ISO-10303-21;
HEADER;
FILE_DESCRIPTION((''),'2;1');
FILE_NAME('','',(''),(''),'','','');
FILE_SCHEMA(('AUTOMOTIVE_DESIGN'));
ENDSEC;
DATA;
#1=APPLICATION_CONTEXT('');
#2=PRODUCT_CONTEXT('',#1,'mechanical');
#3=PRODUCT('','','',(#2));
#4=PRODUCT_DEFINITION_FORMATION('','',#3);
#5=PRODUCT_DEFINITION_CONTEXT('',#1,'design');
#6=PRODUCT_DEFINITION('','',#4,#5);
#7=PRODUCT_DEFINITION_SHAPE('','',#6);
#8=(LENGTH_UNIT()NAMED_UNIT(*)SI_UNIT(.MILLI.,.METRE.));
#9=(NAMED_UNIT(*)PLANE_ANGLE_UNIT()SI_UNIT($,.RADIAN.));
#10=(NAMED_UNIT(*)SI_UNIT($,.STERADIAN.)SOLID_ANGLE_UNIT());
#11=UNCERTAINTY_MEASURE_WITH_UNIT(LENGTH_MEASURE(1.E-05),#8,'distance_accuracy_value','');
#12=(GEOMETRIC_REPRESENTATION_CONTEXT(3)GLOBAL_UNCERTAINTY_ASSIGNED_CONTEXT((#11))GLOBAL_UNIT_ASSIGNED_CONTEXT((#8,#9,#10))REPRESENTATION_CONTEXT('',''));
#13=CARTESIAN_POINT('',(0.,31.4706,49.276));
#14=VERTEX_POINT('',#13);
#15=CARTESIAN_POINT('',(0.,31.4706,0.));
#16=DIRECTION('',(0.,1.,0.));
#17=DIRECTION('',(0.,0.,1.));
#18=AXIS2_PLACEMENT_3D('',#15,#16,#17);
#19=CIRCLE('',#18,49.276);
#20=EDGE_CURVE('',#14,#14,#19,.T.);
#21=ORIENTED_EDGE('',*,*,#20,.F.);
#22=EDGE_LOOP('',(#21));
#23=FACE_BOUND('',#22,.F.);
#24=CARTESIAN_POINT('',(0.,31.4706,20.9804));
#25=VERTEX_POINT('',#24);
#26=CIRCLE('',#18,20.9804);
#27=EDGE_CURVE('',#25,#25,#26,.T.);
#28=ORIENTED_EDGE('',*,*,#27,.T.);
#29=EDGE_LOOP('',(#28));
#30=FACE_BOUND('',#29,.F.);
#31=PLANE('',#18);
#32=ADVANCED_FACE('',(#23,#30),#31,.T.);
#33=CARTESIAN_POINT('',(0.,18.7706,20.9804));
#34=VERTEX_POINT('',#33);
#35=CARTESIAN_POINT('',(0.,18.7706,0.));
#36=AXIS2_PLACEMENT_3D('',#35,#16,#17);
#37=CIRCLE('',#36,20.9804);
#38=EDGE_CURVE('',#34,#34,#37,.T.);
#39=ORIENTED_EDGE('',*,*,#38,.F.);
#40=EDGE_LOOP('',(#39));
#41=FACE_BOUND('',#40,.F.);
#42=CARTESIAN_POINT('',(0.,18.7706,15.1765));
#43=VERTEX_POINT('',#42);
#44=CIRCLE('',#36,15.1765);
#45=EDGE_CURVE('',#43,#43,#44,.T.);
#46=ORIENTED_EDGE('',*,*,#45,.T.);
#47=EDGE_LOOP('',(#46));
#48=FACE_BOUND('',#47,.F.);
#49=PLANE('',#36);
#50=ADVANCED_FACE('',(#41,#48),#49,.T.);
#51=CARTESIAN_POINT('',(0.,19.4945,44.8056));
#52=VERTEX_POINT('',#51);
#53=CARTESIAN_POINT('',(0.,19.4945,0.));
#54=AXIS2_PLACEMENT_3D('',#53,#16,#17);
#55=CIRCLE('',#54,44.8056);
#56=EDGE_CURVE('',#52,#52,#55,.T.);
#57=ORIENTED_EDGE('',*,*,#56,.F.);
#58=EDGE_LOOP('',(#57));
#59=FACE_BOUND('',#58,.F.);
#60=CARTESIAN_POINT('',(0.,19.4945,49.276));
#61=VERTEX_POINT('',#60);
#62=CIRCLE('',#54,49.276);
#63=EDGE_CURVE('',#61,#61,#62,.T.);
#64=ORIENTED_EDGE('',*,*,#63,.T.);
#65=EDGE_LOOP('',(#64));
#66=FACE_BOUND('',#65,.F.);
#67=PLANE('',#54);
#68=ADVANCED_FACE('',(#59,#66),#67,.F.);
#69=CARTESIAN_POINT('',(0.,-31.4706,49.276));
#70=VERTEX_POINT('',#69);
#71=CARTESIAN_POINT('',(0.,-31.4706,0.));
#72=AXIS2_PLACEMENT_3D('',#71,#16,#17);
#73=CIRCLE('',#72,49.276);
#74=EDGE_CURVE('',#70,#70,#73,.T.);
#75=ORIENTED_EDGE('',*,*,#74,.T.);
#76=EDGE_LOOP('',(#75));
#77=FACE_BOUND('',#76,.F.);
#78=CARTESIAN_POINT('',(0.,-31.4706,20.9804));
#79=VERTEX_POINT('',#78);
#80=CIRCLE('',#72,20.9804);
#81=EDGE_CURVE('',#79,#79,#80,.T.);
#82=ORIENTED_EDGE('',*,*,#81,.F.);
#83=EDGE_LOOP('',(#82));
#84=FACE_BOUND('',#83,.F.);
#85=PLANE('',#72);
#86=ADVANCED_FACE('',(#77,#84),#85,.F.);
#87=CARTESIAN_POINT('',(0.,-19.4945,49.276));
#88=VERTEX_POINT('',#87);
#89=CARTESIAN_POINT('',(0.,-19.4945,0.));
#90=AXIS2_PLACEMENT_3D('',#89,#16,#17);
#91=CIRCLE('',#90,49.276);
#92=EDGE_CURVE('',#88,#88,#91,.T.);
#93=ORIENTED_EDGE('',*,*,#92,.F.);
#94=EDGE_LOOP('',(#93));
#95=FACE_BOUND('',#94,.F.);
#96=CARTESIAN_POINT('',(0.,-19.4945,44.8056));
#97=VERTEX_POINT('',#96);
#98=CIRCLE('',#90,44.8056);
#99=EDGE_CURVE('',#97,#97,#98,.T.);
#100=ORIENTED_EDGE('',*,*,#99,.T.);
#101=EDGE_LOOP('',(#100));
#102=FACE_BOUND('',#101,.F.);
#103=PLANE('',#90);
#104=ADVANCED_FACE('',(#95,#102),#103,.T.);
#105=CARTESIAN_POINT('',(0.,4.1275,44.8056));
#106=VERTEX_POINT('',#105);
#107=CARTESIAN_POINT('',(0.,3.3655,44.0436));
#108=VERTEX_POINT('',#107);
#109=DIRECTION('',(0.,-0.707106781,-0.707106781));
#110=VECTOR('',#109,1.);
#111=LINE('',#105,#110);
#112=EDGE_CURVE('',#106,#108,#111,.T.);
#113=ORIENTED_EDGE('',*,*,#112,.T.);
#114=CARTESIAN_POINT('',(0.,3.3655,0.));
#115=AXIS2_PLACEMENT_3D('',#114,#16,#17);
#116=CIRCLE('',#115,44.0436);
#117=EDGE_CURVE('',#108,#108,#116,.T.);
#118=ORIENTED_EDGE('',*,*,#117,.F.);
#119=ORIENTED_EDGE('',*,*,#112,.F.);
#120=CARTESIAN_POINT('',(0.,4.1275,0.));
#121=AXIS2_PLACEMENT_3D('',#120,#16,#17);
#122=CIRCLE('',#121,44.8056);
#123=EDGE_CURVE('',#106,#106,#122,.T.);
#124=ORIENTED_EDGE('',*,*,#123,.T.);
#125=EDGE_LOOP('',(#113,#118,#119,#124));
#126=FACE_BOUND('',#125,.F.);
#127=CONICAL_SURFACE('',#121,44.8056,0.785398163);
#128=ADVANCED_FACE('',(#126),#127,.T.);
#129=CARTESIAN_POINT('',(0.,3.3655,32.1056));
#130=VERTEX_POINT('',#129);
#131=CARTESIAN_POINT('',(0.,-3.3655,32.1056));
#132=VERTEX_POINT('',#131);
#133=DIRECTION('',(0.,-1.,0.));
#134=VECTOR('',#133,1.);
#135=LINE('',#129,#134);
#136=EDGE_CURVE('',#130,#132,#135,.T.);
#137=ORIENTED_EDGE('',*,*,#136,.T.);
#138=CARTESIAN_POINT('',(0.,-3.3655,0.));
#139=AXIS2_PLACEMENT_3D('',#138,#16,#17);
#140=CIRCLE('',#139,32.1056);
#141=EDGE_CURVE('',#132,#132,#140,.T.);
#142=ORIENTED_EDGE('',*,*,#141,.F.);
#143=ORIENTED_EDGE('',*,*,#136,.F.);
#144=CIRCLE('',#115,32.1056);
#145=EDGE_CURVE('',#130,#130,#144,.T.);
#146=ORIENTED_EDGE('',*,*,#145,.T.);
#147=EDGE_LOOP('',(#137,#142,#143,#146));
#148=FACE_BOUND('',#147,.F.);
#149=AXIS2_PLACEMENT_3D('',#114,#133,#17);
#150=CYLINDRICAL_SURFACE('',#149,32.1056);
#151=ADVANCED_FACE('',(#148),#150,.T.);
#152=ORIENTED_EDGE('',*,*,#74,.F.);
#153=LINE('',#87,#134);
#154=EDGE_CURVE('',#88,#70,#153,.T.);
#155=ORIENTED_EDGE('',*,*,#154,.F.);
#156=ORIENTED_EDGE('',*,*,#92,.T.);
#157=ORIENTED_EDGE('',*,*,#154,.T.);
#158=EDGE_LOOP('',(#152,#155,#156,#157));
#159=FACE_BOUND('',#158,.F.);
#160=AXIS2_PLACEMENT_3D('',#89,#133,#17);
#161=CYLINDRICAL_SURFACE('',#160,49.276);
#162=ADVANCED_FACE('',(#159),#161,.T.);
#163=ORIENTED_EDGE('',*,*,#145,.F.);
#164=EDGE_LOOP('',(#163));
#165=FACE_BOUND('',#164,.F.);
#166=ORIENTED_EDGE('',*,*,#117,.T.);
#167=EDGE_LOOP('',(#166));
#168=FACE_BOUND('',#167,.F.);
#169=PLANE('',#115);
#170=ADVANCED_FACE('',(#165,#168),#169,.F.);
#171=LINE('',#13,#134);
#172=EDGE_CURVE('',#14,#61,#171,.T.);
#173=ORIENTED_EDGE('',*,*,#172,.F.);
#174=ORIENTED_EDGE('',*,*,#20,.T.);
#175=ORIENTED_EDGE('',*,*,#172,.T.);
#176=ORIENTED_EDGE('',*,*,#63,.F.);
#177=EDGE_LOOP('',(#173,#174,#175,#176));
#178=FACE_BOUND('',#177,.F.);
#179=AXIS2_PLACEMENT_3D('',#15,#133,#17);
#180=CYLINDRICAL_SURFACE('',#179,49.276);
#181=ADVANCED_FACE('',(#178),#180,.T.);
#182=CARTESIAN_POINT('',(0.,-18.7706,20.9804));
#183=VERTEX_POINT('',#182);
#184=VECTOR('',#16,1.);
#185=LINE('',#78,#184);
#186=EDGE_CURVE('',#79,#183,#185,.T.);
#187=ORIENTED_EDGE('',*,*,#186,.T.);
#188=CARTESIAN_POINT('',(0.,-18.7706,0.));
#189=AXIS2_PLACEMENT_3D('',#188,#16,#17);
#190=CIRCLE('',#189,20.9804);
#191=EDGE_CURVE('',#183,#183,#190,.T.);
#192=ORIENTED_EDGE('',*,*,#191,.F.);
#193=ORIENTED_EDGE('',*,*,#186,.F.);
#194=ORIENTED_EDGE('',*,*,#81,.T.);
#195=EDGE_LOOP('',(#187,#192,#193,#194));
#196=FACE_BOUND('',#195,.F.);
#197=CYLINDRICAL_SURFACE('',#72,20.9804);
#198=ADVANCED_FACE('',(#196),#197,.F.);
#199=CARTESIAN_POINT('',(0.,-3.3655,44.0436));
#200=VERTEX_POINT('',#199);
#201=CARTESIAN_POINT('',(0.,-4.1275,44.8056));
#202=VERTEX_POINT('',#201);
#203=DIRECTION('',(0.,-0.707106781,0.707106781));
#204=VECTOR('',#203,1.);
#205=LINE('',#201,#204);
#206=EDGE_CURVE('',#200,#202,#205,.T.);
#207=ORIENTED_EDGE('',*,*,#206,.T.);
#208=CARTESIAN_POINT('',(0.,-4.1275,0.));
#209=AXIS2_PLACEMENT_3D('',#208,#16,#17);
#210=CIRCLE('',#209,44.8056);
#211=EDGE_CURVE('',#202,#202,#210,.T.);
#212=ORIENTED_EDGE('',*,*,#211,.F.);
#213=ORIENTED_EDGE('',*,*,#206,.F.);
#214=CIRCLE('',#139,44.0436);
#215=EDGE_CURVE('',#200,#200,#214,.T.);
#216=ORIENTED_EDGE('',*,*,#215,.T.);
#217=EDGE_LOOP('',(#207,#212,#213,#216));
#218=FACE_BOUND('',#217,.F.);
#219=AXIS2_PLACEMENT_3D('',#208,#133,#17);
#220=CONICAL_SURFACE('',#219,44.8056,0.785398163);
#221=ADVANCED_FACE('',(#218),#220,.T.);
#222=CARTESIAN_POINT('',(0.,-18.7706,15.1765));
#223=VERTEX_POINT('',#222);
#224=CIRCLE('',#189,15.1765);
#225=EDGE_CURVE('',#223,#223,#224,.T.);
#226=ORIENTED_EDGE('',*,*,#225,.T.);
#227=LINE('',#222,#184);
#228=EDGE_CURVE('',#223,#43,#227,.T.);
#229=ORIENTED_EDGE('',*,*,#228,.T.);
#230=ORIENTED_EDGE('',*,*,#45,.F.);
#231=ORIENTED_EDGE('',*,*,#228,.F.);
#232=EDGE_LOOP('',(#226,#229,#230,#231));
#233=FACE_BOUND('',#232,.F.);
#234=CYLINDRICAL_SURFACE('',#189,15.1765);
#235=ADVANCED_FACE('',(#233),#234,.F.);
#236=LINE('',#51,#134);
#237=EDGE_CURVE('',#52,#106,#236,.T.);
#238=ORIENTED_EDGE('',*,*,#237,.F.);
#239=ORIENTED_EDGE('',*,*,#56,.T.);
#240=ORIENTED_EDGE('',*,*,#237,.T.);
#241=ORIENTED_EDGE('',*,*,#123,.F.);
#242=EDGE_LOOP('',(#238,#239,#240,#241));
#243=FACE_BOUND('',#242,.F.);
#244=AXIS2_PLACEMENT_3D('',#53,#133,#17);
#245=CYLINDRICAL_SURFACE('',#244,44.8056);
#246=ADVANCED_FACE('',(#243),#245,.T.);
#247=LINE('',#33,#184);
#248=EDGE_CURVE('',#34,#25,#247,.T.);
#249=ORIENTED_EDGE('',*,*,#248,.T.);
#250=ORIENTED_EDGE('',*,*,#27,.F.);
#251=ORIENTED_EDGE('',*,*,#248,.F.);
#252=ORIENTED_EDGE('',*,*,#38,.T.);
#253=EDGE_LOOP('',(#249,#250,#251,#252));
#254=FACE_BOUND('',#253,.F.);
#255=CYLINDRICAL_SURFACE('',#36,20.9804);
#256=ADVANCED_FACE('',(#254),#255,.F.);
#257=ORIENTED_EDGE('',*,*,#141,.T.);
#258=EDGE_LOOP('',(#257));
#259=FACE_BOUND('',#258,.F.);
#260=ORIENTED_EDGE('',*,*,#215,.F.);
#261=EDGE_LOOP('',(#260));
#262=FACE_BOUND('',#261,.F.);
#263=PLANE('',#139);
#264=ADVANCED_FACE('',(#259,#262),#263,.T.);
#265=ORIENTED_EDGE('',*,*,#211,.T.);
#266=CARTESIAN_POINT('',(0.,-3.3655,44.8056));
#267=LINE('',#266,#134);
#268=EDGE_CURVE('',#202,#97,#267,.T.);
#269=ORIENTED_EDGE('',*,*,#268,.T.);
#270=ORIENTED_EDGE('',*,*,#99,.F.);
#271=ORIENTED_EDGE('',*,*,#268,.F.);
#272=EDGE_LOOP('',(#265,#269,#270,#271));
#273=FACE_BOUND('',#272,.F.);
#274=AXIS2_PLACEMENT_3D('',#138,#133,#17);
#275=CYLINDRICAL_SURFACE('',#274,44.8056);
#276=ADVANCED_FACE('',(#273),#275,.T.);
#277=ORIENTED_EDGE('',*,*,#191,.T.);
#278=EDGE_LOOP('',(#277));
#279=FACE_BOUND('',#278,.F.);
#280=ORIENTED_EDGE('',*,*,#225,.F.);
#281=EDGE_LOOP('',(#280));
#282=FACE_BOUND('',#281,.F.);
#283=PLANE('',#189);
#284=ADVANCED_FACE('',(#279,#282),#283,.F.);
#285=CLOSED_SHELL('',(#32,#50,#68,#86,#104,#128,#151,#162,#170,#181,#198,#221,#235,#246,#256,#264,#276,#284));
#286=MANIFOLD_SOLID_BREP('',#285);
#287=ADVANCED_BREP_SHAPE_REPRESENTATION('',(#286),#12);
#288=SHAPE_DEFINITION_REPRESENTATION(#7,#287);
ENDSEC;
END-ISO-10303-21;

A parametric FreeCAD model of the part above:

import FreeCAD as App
import Part
import Sketcher

V = App.Vector
Q = App.Units.Quantity


def edges_at(feature, points):
    """Names of the edges that pass closest to the given points."""
    edges = feature.Shape.Edges
    near = lambda p: min(range(len(edges)), key=lambda i: edges[i].distToShape(Part.Vertex(*p))[0])
    return sorted({f"Edge{near(p) + 1}" for p in points})

doc = App.newDocument("Part")
params = doc.addObject("Spreadsheet::Sheet", "Params")
for row, (alias, value) in enumerate([
    ("sketch1_width", "0.5 in"),
    ("sketch1_width2", "1.478 in"),
    ("sketch1_width3", "0.635 in"),
    ("sketch1_height", "1.114 in"),
    ("sketch1_height2", "0.176 in"),
    ("revolution_angle", "360 deg"),
    ("chamfer_size", "0.03 in"),
], start=1):
    params.set(f"A{row}", alias)
    params.set(f"B{row}", "=" + value)
    params.setAlias(f"B{row}", alias)

body = doc.addObject("PartDesign::Body", "Body")

# Sketch on YZ plane
sketch1 = body.newObject("Sketcher::SketchObject", "Sketch")
sketch1.AttachmentSupport = (doc.getObject("YZ_Plane"), [""])
sketch1.MapMode = "FlatFace"
sketch1.addGeometry(Part.LineSegment(V(-18.7706, 15.1765, 0), V(18.7706, 15.1765, 0)), False)
sketch1.addGeometry(Part.LineSegment(V(18.7706, 15.1765, 0), V(18.7706, 20.9804, 0)), False)
sketch1.addGeometry(Part.LineSegment(V(18.7706, 20.9804, 0), V(31.4706, 20.9804, 0)), False)
sketch1.addGeometry(Part.LineSegment(V(31.4706, 20.9804, 0), V(31.4706, 49.276, 0)), False)
sketch1.addGeometry(Part.LineSegment(V(31.4706, 49.276, 0), V(19.4945, 49.276, 0)), False)
sketch1.addGeometry(Part.LineSegment(V(19.4945, 49.276, 0), V(19.4945, 44.8056, 0)), False)
sketch1.addGeometry(Part.LineSegment(V(19.4945, 44.8056, 0), V(3.3655, 44.8056, 0)), False)
sketch1.addGeometry(Part.LineSegment(V(3.3655, 44.8056, 0), V(3.3655, 32.1056, 0)), False)
sketch1.addGeometry(Part.LineSegment(V(3.3655, 32.1056, 0), V(-3.3655, 32.1056, 0)), False)
sketch1.addGeometry(Part.LineSegment(V(-3.3655, 32.1056, 0), V(-3.3655, 44.8056, 0)), False)
sketch1.addGeometry(Part.LineSegment(V(-3.3655, 44.8056, 0), V(-19.4945, 44.8056, 0)), False)
sketch1.addGeometry(Part.LineSegment(V(-19.4945, 44.8056, 0), V(-19.4945, 49.276, 0)), False)
sketch1.addGeometry(Part.LineSegment(V(-19.4945, 49.276, 0), V(-31.4706, 49.276, 0)), False)
sketch1.addGeometry(Part.LineSegment(V(-31.4706, 49.276, 0), V(-31.4706, 20.9804, 0)), False)
sketch1.addGeometry(Part.LineSegment(V(-31.4706, 20.9804, 0), V(-18.7706, 20.9804, 0)), False)
sketch1.addGeometry(Part.LineSegment(V(-18.7706, 20.9804, 0), V(-18.7706, 15.1765, 0)), False)
sketch1.addConstraint(Sketcher.Constraint("Coincident", 0, 2, 1, 1))
sketch1.addConstraint(Sketcher.Constraint("Coincident", 1, 2, 2, 1))
sketch1.addConstraint(Sketcher.Constraint("Coincident", 2, 2, 3, 1))
sketch1.addConstraint(Sketcher.Constraint("Coincident", 3, 2, 4, 1))
sketch1.addConstraint(Sketcher.Constraint("Coincident", 4, 2, 5, 1))
sketch1.addConstraint(Sketcher.Constraint("Coincident", 5, 2, 6, 1))
sketch1.addConstraint(Sketcher.Constraint("Coincident", 6, 2, 7, 1))
sketch1.addConstraint(Sketcher.Constraint("Coincident", 7, 2, 8, 1))
sketch1.addConstraint(Sketcher.Constraint("Coincident", 8, 2, 9, 1))
sketch1.addConstraint(Sketcher.Constraint("Coincident", 9, 2, 10, 1))
sketch1.addConstraint(Sketcher.Constraint("Coincident", 10, 2, 11, 1))
sketch1.addConstraint(Sketcher.Constraint("Coincident", 11, 2, 12, 1))
sketch1.addConstraint(Sketcher.Constraint("Coincident", 12, 2, 13, 1))
sketch1.addConstraint(Sketcher.Constraint("Coincident", 13, 2, 14, 1))
sketch1.addConstraint(Sketcher.Constraint("Coincident", 14, 2, 15, 1))
sketch1.addConstraint(Sketcher.Constraint("Coincident", 15, 2, 0, 1))
sketch1.addConstraint(Sketcher.Constraint("Horizontal", 0))
sketch1.addConstraint(Sketcher.Constraint("Vertical", 1))
sketch1.addConstraint(Sketcher.Constraint("Horizontal", 2))
sketch1.addConstraint(Sketcher.Constraint("Vertical", 3))
sketch1.addConstraint(Sketcher.Constraint("Horizontal", 4))
sketch1.addConstraint(Sketcher.Constraint("Vertical", 5))
sketch1.addConstraint(Sketcher.Constraint("Horizontal", 6))
sketch1.addConstraint(Sketcher.Constraint("Vertical", 7))
sketch1.addConstraint(Sketcher.Constraint("Horizontal", 8))
sketch1.addConstraint(Sketcher.Constraint("Vertical", 9))
sketch1.addConstraint(Sketcher.Constraint("Horizontal", 10))
sketch1.addConstraint(Sketcher.Constraint("Vertical", 11))
sketch1.addConstraint(Sketcher.Constraint("Horizontal", 12))
sketch1.addConstraint(Sketcher.Constraint("Vertical", 13))
sketch1.addConstraint(Sketcher.Constraint("Horizontal", 14))
sketch1.addConstraint(Sketcher.Constraint("Vertical", 15))
sketch1.addConstraint(Sketcher.Constraint("Symmetric", 6, 2, 9, 2, -2))
sketch1.addConstraint(Sketcher.Constraint("Symmetric", 4, 2, 11, 2, -2))
sketch1.addConstraint(Sketcher.Constraint("Symmetric", 2, 2, 13, 2, -2))
sketch1.addConstraint(Sketcher.Constraint("Equal", 2, 14))
sketch1.addConstraint(Sketcher.Constraint("Equal", 14, 7))
sketch1.addConstraint(Sketcher.Constraint("DistanceX", 2, 1, 2, 2, Q("0.5 in")))
sketch1.addConstraint(Sketcher.Constraint("DistanceX", 8, 2, 5, 2, Q("0.9 in")))
sketch1.addConstraint(Sketcher.Constraint("DistanceX", 0, 1, 0, 2, Q("1.478 in")))
sketch1.addConstraint(Sketcher.Constraint("DistanceX", 6, 2, 6, 1, Q("0.635 in")))
sketch1.addConstraint(Sketcher.Constraint("DistanceY", 3, 1, 3, 2, Q("1.114 in")))
sketch1.addConstraint(Sketcher.Constraint("DistanceY", 5, 2, 5, 1, Q("0.176 in")))
sketch1.addConstraint(Sketcher.Constraint("DistanceY", -1, 1, 3, 2, Q("1.94 in")))
sketch1.addConstraint(Sketcher.Constraint("DistanceY", 1, 1, 1, 2, Q("0.2285 in")))
sketch1.setExpression("Constraints[37]", "Params.sketch1_width")
sketch1.setExpression("Constraints[39]", "Params.sketch1_width2")
sketch1.setExpression("Constraints[40]", "Params.sketch1_width3")
sketch1.setExpression("Constraints[41]", "Params.sketch1_height")
sketch1.setExpression("Constraints[42]", "Params.sketch1_height2")
revolution = body.newObject("PartDesign::Revolution", "Revolution")
revolution.Profile = sketch1
revolution.ReferenceAxis = (sketch1, ["H_Axis"])
revolution.setExpression("Angle", "Params.revolution_angle")
doc.recompute()

chamfer = body.newObject("PartDesign::Chamfer", "Chamfer")
chamfer.Base = (revolution, edges_at(revolution, [(0, 3.365, -44.806), (0, -3.365, -44.806)]))
chamfer.setExpression("Size", "Params.chamfer_size")

doc.recompute()
